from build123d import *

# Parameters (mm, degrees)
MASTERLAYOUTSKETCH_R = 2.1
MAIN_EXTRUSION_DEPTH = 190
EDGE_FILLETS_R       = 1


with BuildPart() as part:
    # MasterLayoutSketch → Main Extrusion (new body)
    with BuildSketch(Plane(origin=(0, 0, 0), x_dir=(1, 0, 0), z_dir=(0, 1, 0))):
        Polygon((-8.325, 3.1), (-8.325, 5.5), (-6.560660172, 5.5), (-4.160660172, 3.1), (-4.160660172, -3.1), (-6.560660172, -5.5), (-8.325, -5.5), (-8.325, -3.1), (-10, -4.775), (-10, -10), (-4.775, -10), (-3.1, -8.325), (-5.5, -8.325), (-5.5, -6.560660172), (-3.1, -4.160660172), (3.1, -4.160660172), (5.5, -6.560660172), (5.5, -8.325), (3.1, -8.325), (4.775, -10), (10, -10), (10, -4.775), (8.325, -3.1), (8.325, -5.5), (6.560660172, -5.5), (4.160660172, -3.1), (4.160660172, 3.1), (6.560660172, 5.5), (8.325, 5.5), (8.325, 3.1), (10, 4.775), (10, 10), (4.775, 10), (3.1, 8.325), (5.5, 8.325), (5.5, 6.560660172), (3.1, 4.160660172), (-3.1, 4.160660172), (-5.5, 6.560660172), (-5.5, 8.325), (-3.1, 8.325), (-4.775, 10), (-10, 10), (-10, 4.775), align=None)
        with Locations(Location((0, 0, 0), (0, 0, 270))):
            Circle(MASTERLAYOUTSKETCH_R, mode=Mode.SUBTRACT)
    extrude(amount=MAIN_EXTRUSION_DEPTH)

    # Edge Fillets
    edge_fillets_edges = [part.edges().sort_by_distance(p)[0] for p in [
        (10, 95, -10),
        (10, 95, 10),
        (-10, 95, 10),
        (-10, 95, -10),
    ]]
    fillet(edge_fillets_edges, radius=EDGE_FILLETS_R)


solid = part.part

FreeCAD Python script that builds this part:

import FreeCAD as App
import Part
import Sketcher


def edges_at(feature, points):
    """Names of the edges that pass closest to the given points."""
    edges = feature.Shape.Edges
    near = lambda p: min(range(len(edges)), key=lambda i: edges[i].distToShape(Part.Vertex(*p))[0])
    return sorted({f"Edge{near(p) + 1}" for p in points})


def add_polygon(sketch, points):
    """Adds a closed chain of lines whose ends are joined by coincident constraints."""
    first, n = sketch.GeometryCount, len(points)
    for a, b in zip(points, points[1:] + points[:1]):
        sketch.addGeometry(Part.LineSegment(App.Vector(*a, 0), App.Vector(*b, 0)), False)
    for i in range(n):
        sketch.addConstraint(Sketcher.Constraint("Coincident", first + i, 2, first + (i + 1) % n, 1))

doc = App.newDocument("Part")
body = doc.addObject("PartDesign::Body", "Body")

# Sketch on XZ plane
sketch1 = body.newObject("Sketcher::SketchObject", "Sketch")
sketch1.AttachmentSupport = (doc.getObject("XZ_Plane"), [""])
sketch1.MapMode = "FlatFace"
add_polygon(sketch1, [(-8.325, -3.1), (-8.325, -5.5), (-6.56066, -5.5), (-4.16066, -3.1), (-4.16066, 3.1), (-6.56066, 5.5), (-8.325, 5.5), (-8.325, 3.1), (-10, 4.775), (-10, 10), (-4.775, 10), (-3.1, 8.325), (-5.5, 8.325), (-5.5, 6.56066), (-3.1, 4.16066), (3.1, 4.16066), (5.5, 6.56066), (5.5, 8.325), (3.1, 8.325), (4.775, 10), (10, 10), (10, 4.775), (8.325, 3.1), (8.325, 5.5), (6.56066, 5.5), (4.16066, 3.1), (4.16066, -3.1), (6.56066, -5.5), (8.325, -5.5), (8.325, -3.1), (10, -4.775), (10, -10), (4.775, -10), (3.1, -8.325), (5.5, -8.325), (5.5, -6.56066), (3.1, -4.16066), (-3.1, -4.16066), (-5.5, -6.56066), (-5.5, -8.325), (-3.1, -8.325), (-4.775, -10), (-10, -10), (-10, -4.775)])  # lines 0-43
sketch1.addGeometry(Part.Circle(App.Vector(0, 0, 0), App.Vector(0, 0, 1), 2.1), False)  # 44
sketch1.addConstraint([
    Sketcher.Constraint("Vertical", 0),
    Sketcher.Constraint("Horizontal", 1),
    Sketcher.Constraint("Vertical", 3),
    Sketcher.Constraint("Horizontal", 5),
    Sketcher.Constraint("Vertical", 6),
    Sketcher.Constraint("Vertical", 8),
    Sketcher.Constraint("Horizontal", 9),
    Sketcher.Constraint("Horizontal", 11),
    Sketcher.Constraint("Vertical", 12),
    Sketcher.Constraint("Horizontal", 14),
    Sketcher.Constraint("Vertical", 16),
    Sketcher.Constraint("Horizontal", 17),
    Sketcher.Constraint("Horizontal", 19),
    Sketcher.Constraint("Vertical", 20),
    Sketcher.Constraint("Vertical", 22),
    Sketcher.Constraint("Horizontal", 23),
    Sketcher.Constraint("Vertical", 25),
    Sketcher.Constraint("Horizontal", 27),
    Sketcher.Constraint("Vertical", 28),
    Sketcher.Constraint("Vertical", 30),
    Sketcher.Constraint("Horizontal", 31),
    Sketcher.Constraint("Horizontal", 33),
    Sketcher.Constraint("Vertical", 34),
    Sketcher.Constraint("Horizontal", 36),
    Sketcher.Constraint("Vertical", 38),
    Sketcher.Constraint("Horizontal", 39),
    Sketcher.Constraint("Horizontal", 41),
    Sketcher.Constraint("Vertical", 42),
    Sketcher.Constraint("Coincident", 44, 3, -1, 1),
    Sketcher.Constraint("Symmetric", 0, 2, 22, 2, -1, 1),
    Sketcher.Constraint("Symmetric", 2, 2, 24, 2, -1, 1),
    Sketcher.Constraint("Symmetric", 4, 2, 26, 2, -1, 1),
    Sketcher.Constraint("Symmetric", 6, 2, 28, 2, -1, 1),
    Sketcher.Constraint("Symmetric", 7, 2, 29, 2, -1, 1),
    Sketcher.Constraint("Symmetric", 9, 2, 31, 2, -1, 1),
    Sketcher.Constraint("Symmetric", 10, 2, 32, 2, -1, 1),
    Sketcher.Constraint("Symmetric", 12, 2, 34, 2, -1, 1),
    Sketcher.Constraint("Symmetric", 13, 2, 35, 2, -1, 1),
    Sketcher.Constraint("Symmetric", 15, 2, 37, 2, -1, 1),
    Sketcher.Constraint("Symmetric", 17, 2, 39, 2, -1, 1),
    Sketcher.Constraint("Symmetric", 18, 2, 40, 2, -1, 1),
    Sketcher.Constraint("Symmetric", 20, 2, 42, 2, -1, 1),
    Sketcher.Constraint("Symmetric", 12, 2, 15, 2, -2),
    Sketcher.Constraint("Symmetric", 10, 2, 17, 2, -2),
    Sketcher.Constraint("Symmetric", 9, 2, 18, 2, -2),
    Sketcher.Constraint("Symmetric", 7, 2, 20, 2, -2),
    Sketcher.Constraint("Symmetric", 6, 2, 21, 2, -2),
    Sketcher.Constraint("Symmetric", 4, 2, 23, 2, -2),
    Sketcher.Constraint("Perpendicular", 2, 4),
    Sketcher.Constraint("Parallel", 4, 7),
    Sketcher.Constraint("Parallel", 7, 10),
    Sketcher.Constraint("Parallel", 10, 13),
    Sketcher.Constraint("Perpendicular", 13, 15),
    Sketcher.Constraint("Parallel", 15, 18),
    Sketcher.Constraint("Parallel", 21, 24),
    Sketcher.Constraint("Perpendicular", 24, 26),
    Sketcher.Constraint("Perpendicular", 35, 37),
    Sketcher.Constraint("Parallel", 40, 43),
    Sketcher.Constraint("Horizontal", 3, 2, 6, 2),
    Sketcher.Constraint("Vertical", 10, 2, 13, 2),
    Sketcher.Constraint("Equal", 39, 0),
    Sketcher.Constraint("Equal", 36, 3),
    Sketcher.Constraint("Equal", 41, 8),
    Sketcher.Constraint("Equal", 27, 12),
    Sketcher.Constraint("Equal", 7, 10),
    Sketcher.Constraint("Diameter", 44, 4.2),
    Sketcher.Constraint("DistanceX", 11, 2, 11, 1, 2.4),
    Sketcher.Constraint("DistanceX", 14, 1, 14, 2, 6.2),
    Sketcher.Constraint("DistanceX", 7, 2, -1, 1, 10.0),
    Sketcher.Constraint("DistanceX", 9, 1, 9, 2, 5.225),
    Sketcher.Constraint("DistanceX", 1, 1, 1, 2, 1.76434),
])
pad1 = body.newObject("PartDesign::Pad", "Pad")
pad1.Profile = sketch1
pad1.Length = 190
pad1.Reversed = True
doc.recompute()

fillet = body.newObject("PartDesign::Fillet", "Fillet")
fillet.Base = (pad1, edges_at(pad1, [
    (10, 95, -10),
    (10, 95, 10),
    (-10, 95, 10),
    (-10, 95, -10),
]))
fillet.Radius = 1

doc.recompute()
